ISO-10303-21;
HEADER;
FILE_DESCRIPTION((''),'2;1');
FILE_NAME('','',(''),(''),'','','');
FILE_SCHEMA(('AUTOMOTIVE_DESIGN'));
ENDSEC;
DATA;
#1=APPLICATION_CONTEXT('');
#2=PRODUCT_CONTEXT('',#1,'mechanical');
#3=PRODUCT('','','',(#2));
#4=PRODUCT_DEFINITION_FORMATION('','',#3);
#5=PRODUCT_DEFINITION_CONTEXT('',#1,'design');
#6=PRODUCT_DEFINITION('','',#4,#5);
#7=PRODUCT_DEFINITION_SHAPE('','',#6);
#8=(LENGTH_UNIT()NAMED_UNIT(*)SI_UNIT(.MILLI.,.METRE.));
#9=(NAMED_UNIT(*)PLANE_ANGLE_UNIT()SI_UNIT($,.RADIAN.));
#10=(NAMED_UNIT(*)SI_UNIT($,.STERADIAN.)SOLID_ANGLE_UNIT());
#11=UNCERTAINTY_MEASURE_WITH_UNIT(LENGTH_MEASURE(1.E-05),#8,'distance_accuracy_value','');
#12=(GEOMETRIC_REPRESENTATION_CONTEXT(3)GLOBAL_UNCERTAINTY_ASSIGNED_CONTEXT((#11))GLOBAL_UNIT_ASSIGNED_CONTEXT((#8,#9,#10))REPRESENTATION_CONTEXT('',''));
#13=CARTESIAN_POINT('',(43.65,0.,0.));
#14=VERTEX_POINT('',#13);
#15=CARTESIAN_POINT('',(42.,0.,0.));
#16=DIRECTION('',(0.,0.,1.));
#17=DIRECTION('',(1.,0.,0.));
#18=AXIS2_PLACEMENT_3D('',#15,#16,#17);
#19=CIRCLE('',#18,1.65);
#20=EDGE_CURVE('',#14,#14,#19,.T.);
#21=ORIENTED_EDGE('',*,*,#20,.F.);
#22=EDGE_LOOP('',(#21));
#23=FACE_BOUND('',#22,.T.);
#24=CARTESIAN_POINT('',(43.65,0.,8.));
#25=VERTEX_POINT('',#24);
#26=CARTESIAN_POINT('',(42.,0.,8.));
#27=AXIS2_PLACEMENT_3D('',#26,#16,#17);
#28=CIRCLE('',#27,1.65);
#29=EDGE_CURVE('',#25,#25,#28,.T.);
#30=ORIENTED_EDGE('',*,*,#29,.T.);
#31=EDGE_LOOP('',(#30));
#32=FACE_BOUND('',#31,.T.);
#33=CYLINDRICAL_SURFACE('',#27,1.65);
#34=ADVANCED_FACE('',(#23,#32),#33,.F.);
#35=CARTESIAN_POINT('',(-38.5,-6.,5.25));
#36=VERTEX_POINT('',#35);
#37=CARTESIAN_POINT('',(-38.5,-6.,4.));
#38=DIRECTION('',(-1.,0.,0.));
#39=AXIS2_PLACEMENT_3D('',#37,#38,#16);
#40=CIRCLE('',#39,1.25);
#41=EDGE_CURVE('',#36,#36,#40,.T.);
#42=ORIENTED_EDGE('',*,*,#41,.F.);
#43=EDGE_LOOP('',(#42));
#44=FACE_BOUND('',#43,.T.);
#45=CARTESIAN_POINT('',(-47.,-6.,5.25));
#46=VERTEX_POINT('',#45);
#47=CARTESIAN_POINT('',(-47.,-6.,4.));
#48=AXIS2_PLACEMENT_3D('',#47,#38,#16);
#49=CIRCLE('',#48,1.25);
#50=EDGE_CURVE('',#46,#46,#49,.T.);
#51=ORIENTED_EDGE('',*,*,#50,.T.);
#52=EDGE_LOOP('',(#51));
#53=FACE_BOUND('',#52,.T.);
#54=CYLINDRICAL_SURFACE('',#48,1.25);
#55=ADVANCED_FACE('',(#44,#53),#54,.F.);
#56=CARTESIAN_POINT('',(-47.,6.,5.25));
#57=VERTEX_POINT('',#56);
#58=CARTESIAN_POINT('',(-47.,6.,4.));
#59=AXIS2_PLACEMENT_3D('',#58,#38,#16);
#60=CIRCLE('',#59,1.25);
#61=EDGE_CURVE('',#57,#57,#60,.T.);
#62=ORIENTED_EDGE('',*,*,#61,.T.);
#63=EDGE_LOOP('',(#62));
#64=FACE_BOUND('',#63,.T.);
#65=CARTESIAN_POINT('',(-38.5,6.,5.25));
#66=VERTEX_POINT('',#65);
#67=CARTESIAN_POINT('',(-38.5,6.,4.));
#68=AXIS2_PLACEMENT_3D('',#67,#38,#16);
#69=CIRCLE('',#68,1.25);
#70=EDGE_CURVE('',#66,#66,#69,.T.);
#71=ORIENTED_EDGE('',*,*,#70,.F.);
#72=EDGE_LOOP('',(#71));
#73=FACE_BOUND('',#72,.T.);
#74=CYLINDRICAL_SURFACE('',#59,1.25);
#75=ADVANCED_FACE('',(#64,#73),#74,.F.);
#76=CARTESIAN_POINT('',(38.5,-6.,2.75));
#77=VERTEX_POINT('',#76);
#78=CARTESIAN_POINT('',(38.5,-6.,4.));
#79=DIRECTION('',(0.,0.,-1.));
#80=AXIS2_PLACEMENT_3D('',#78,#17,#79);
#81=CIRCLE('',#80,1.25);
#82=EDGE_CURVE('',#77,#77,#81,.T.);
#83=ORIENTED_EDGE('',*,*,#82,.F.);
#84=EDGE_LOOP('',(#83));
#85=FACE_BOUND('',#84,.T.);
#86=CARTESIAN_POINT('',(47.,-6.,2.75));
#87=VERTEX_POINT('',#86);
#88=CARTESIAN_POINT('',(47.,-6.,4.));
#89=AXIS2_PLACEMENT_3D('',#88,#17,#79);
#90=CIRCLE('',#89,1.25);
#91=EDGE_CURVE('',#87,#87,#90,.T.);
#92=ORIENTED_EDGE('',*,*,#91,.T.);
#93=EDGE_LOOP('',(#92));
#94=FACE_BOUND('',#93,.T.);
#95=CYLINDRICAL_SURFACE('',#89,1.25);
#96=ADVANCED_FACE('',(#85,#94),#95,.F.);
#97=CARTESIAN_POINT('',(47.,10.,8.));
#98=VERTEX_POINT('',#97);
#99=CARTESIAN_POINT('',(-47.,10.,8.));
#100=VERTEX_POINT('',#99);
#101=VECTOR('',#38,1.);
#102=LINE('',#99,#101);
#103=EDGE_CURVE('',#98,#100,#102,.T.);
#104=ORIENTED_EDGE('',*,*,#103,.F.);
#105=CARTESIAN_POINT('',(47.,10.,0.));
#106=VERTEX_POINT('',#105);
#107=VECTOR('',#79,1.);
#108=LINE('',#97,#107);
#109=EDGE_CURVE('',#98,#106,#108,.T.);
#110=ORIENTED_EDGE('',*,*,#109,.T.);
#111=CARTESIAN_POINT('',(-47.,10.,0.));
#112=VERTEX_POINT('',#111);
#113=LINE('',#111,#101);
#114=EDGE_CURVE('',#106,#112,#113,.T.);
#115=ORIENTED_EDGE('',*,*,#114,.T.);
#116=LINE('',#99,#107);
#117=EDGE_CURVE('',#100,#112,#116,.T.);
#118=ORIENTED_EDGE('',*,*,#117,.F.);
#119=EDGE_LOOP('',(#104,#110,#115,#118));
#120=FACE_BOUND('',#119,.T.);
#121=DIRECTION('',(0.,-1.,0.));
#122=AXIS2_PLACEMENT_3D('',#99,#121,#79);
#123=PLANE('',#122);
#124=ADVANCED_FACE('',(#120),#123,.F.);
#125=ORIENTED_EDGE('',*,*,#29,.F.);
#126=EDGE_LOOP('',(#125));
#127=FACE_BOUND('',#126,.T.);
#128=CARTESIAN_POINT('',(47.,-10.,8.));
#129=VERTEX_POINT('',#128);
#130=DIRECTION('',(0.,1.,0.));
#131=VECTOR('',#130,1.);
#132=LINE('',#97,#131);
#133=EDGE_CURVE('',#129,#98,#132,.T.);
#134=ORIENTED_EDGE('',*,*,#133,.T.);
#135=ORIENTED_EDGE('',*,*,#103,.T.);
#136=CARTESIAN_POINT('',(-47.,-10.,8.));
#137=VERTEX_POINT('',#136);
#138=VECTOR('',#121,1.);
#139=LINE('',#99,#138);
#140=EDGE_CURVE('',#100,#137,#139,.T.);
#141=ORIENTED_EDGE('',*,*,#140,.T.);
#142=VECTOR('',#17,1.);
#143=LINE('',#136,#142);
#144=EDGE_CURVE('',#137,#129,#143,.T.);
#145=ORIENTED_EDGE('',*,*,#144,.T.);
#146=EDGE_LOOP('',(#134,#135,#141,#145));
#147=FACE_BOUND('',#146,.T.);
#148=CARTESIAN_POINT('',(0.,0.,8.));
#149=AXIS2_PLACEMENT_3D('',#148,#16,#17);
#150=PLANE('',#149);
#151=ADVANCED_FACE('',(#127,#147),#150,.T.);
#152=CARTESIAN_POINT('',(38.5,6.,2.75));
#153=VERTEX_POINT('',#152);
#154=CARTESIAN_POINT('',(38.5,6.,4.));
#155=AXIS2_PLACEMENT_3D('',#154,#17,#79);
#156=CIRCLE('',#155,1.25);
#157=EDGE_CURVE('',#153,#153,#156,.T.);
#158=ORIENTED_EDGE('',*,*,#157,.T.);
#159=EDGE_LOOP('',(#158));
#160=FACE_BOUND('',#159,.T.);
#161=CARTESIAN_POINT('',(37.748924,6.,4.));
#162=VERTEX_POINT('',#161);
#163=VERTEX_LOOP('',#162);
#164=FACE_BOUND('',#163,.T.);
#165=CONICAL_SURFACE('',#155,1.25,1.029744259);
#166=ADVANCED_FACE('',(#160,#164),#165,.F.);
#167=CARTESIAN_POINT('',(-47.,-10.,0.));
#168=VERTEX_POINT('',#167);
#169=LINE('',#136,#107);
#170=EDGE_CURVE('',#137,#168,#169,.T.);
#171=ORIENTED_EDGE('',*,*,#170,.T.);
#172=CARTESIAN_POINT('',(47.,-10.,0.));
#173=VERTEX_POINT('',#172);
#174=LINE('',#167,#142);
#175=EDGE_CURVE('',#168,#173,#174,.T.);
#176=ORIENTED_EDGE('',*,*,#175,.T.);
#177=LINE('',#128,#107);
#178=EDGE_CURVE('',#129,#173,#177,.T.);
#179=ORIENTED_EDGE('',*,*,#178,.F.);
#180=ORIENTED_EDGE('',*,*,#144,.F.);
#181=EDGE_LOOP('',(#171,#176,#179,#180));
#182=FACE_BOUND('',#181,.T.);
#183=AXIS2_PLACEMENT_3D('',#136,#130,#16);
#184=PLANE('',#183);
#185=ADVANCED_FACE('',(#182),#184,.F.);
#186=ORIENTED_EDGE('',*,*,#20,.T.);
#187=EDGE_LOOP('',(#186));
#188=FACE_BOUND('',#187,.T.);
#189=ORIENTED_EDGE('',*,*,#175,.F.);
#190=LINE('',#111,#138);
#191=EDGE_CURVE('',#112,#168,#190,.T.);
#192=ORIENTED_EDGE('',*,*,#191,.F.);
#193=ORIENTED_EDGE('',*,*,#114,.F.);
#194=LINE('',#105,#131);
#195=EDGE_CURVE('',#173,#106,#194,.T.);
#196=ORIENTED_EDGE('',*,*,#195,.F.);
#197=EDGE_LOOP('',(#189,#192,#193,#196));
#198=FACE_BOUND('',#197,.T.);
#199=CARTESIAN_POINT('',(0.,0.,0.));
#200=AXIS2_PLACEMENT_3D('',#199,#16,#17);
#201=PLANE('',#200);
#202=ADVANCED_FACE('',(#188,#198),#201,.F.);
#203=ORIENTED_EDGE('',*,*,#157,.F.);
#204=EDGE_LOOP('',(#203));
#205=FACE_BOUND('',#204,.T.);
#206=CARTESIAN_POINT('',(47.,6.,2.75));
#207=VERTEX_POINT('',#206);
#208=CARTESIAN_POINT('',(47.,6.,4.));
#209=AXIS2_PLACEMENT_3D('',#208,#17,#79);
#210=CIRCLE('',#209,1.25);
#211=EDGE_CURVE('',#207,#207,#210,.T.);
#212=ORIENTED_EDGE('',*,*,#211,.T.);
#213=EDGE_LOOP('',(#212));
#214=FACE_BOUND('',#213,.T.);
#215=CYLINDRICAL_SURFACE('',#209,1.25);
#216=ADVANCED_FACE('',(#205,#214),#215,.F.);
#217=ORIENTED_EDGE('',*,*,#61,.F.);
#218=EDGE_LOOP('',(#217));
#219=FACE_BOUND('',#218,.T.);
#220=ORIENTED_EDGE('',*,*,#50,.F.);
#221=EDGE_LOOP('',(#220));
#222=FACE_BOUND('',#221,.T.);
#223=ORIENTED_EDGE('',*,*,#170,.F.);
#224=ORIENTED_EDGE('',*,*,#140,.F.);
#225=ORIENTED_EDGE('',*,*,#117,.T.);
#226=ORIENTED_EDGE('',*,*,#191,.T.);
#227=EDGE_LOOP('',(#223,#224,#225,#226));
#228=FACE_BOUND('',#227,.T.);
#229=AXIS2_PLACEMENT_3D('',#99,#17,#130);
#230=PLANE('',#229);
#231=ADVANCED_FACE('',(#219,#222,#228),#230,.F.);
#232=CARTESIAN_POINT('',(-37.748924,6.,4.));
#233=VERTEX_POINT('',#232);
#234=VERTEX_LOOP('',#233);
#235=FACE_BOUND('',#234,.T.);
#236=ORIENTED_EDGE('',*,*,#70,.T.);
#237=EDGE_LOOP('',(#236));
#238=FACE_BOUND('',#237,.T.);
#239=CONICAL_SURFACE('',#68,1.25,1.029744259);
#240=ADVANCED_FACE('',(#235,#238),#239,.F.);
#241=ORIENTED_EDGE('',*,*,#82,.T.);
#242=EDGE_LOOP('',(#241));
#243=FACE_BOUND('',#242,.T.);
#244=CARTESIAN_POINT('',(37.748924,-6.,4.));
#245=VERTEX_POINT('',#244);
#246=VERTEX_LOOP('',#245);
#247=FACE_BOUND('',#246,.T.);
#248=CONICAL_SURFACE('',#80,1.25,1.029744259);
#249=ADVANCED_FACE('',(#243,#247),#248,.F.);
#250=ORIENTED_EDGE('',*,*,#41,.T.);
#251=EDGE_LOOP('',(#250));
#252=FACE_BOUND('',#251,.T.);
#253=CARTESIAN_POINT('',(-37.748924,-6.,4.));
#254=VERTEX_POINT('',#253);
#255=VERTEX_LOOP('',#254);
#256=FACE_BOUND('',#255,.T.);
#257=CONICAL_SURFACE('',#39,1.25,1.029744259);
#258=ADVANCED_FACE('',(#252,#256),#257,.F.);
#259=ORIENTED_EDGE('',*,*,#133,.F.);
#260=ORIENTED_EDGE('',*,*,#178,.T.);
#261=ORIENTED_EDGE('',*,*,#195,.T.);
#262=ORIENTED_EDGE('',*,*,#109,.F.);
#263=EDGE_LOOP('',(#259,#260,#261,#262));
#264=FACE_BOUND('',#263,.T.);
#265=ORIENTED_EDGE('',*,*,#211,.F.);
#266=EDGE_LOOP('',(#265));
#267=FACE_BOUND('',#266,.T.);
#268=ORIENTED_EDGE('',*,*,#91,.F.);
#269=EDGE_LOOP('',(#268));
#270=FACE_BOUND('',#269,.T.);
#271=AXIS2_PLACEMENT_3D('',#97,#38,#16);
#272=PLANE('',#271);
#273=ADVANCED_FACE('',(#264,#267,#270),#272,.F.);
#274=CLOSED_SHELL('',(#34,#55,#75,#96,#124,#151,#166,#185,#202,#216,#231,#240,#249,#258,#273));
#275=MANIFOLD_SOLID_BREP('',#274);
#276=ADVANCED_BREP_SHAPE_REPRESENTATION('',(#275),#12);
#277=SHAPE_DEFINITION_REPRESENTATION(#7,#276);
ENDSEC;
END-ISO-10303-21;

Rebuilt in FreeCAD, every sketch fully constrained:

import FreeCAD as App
import Part
import Sketcher
Q = App.Units.Quantity


def add_polygon(sketch, points):
    """Adds a closed chain of lines whose ends are joined by coincident constraints."""
    first, n = sketch.GeometryCount, len(points)
    for a, b in zip(points, points[1:] + points[:1]):
        sketch.addGeometry(Part.LineSegment(App.Vector(*a, 0), App.Vector(*b, 0)), False)
    for i in range(n):
        sketch.addConstraint(Sketcher.Constraint("Coincident", first + i, 2, first + (i + 1) % n, 1))

doc = App.newDocument("Part")
body = doc.addObject("PartDesign::Body", "Body")

# Sketch on XY plane
sketch1 = body.newObject("Sketcher::SketchObject", "Sketch")
sketch1.AttachmentSupport = (doc.getObject("XY_Plane"), [""])
sketch1.MapMode = "FlatFace"
add_polygon(sketch1, [(-47, 10), (-47, -10), (47, -10), (47, 10)])  # lines 0-3
sketch1.addConstraint([
    Sketcher.Constraint("Vertical", 0),
    Sketcher.Constraint("Horizontal", 1),
    Sketcher.Constraint("Vertical", 2),
    Sketcher.Constraint("Horizontal", 3),
    Sketcher.Constraint("Symmetric", 0, 2, 2, 2, -1, 1),
    Sketcher.Constraint("DistanceX", 1, 1, 1, 2, 94.0),
    Sketcher.Constraint("DistanceY", 0, 2, 0, 1, 20.0),
])
pad1 = body.newObject("PartDesign::Pad", "Pad")
pad1.Profile = sketch1
pad1.Length = 8

# Sketch on XY plane
sketch2 = body.newObject("Sketcher::SketchObject", "Sketch001")
sketch2.AttachmentSupport = (doc.getObject("XY_Plane"), [""])
sketch2.MapMode = "FlatFace"
sketch2.AttachmentOffset = App.Placement(App.Vector(0, 0, 8), App.Rotation())
sketch2.addGeometry(Part.Circle(App.Vector(42, 0, 0), App.Vector(0, 0, 1), 1.65), False)
sketch2.addConstraint([
    Sketcher.Constraint("PointOnObject", 0, 3, -1),
    Sketcher.Constraint("Diameter", 0, 3.3),
    Sketcher.Constraint("DistanceX", -1, 1, 0, 3, 42.0),
])
doc.recompute()
hole = body.newObject("PartDesign::Hole", "Hole")
hole.Profile = sketch2
hole.ThreadType = "None"
hole.Diameter = 3.3
hole.DepthType = "Dimension"
hole.Depth = 8
hole.DrillPoint = "Flat"

# Sketch on XZ plane
sketch3 = body.newObject("Sketcher::SketchObject", "Sketch002")
sketch3.AttachmentSupport = (doc.getObject("XZ_Plane"), [""])
sketch3.MapMode = "FlatFace"
sketch3.AttachmentOffset = App.Placement(App.Vector(0, 0, -6), App.Rotation())
add_polygon(sketch3, [(37.748924, 4), (47, 4), (47, 2.75), (38.5, 2.75)])  # lines 0-3
sketch3.addGeometry(Part.LineSegment(App.Vector(47, 4, 0), App.Vector(37.748924, 4, 0)), True)  # axis
sketch3.addConstraint([
    Sketcher.Constraint("Horizontal", 0),
    Sketcher.Constraint("Vertical", 1),
    Sketcher.Constraint("Horizontal", 2),
    Sketcher.Constraint("Horizontal", 4),
    Sketcher.Constraint("Coincident", 4, 1, 0, 2),
    Sketcher.Constraint("Equal", 0, 4),
    Sketcher.Constraint("Angle", 3, Q("121 deg")),
    Sketcher.Constraint("DistanceX", 2, 2, 2, 1, 8.5),
    Sketcher.Constraint("DistanceX", -1, 1, 0, 2, 47.0),
    Sketcher.Constraint("DistanceY", -1, 1, 0, 2, 4.0),
    Sketcher.Constraint("DistanceY", 1, 2, 1, 1, 1.25),
])
groove = body.newObject("PartDesign::Groove", "Groove")
groove.Profile = sketch3
groove.ReferenceAxis = (sketch3, ["Axis0"])
groove.Angle = 360
doc.recompute()

linearpattern = body.newObject("PartDesign::LinearPattern", "LinearPattern")
linearpattern.Originals = [groove]
linearpattern.Direction = (doc.getObject("Y_Axis"), [""])
linearpattern.Mode = "offset"
linearpattern.Offset = 12
linearpattern.Occurrences = 2
linearpattern.Reversed = True
body.Tip = linearpattern
doc.recompute()

mirrored = body.newObject("PartDesign::Mirrored", "Mirrored")
mirrored.Originals = [groove]
mirrored.MirrorPlane = (doc.getObject("YZ_Plane"), [""])
body.Tip = mirrored

# Sketch on XZ plane
sketch4 = body.newObject("Sketcher::SketchObject", "Sketch003")
sketch4.AttachmentSupport = (doc.getObject("XZ_Plane"), [""])
sketch4.MapMode = "FlatFace"
sketch4.AttachmentOffset = App.Placement(App.Vector(0, 0, 6), App.Rotation())
add_polygon(sketch4, [(-47, 4), (-37.748924, 4), (-38.5, 2.75), (-47, 2.75)])  # lines 0-3
sketch4.addGeometry(Part.LineSegment(App.Vector(-37.748924, 4, 0), App.Vector(-47, 4, 0)), True)  # axis
sketch4.addConstraint([
    Sketcher.Constraint("Horizontal", 0),
    Sketcher.Constraint("Horizontal", 2),
    Sketcher.Constraint("Vertical", 3),
    Sketcher.Constraint("Horizontal", 4),
    Sketcher.Constraint("Coincident", 4, 1, 0, 2),
    Sketcher.Constraint("Vertical", 2, 2, 4, 2),
    Sketcher.Constraint("Angle", 1, Q("-121 deg")),
    Sketcher.Constraint("DistanceX", 2, 2, 2, 1, 8.5),
    Sketcher.Constraint("DistanceY", -1, 1, 0, 2, 4.0),
    Sketcher.Constraint("DistanceX", 2, 2, -1, 1, 47.0),
    Sketcher.Constraint("DistanceY", 3, 1, 3, 2, 1.25),
])
groove2 = body.newObject("PartDesign::Groove", "Groove001")
groove2.Profile = sketch4
groove2.ReferenceAxis = (sketch4, ["Axis0"])
groove2.Angle = 360

doc.recompute()
